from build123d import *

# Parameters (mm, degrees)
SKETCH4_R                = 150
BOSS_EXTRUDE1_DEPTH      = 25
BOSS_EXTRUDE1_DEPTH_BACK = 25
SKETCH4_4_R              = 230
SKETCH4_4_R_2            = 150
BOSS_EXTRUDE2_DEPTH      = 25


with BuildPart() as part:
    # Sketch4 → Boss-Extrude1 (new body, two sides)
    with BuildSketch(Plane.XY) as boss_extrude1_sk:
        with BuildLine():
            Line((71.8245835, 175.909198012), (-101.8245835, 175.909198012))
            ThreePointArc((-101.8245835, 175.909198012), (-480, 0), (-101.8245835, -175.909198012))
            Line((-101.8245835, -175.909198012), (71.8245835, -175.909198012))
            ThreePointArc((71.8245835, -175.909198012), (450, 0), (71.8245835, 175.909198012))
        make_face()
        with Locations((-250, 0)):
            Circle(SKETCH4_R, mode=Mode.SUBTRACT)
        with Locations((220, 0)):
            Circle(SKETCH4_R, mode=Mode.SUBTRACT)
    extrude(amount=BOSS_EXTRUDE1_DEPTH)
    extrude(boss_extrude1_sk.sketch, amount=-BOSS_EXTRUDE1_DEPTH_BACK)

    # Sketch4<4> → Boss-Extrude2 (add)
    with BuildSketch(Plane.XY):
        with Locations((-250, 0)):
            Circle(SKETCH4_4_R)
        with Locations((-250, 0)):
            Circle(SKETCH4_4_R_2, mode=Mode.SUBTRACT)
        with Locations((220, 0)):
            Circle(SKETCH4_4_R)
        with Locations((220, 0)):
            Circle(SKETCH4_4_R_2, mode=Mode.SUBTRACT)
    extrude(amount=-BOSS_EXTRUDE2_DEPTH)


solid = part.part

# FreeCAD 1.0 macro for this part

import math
import FreeCAD as App
import Part
import Sketcher
from FreeCAD import Vector
Q = App.Units.Quantity

doc = App.newDocument("Part")
params = doc.addObject("Spreadsheet::Sheet", "Params")
for row, (alias, value) in enumerate([
    ("sketch1_diameter", "300 mm"),
    ("sketch1_radius", "230 mm"),
    ("pad1_length", "25 mm"),
    ("pad1_length2", "25 mm"),
    ("sketch2_diameter", "460 mm"),
    ("sketch2_diameter2", "300 mm"),
    ("pad2_length", "25 mm"),
], start=1):
    params.set(f"A{row}", alias)
    params.set(f"B{row}", "=" + value)
    params.setAlias(f"B{row}", alias)

body = doc.addObject("PartDesign::Body", "Body")

# Sketch on XY plane
sketch1 = doc.addObject("Sketcher::SketchObject", "Sketch")
body.addObject(sketch1)
sketch1.AttachmentSupport = (doc.XY_Plane, [""])
sketch1.MapMode = "FlatFace"
sketch1.addGeometry([
    Part.LineSegment(Vector(72, 176, 0), Vector(-102, 176, 0)),  # 0
    Part.ArcOfCircle(Part.Circle(Vector(-250, 0, 0), Vector(0, 0, 1), 230), math.radians(50), math.radians(310)),  # 1
    Part.LineSegment(Vector(-102, -176, 0), Vector(72, -176, 0)),  # 2
    Part.ArcOfCircle(Part.Circle(Vector(220, 0, 0), Vector(0, 0, 1), 230), math.radians(-130), math.radians(130)),  # 3
    Part.Circle(Vector(-250, 0, 0), Vector(0, 0, 1), 150),  # 4
    Part.Circle(Vector(220, 0, 0), Vector(0, 0, 1), 150),  # 5
], False)
sketch1.addConstraint([
    Sketcher.Constraint("Coincident", 0, 2, 1, 1),
    Sketcher.Constraint("Coincident", 1, 2, 2, 1),
    Sketcher.Constraint("Coincident", 2, 2, 3, 1),
    Sketcher.Constraint("Coincident", 3, 2, 0, 1),
    Sketcher.Constraint("Horizontal", 0),
    Sketcher.Constraint("Horizontal", 2),
    Sketcher.Constraint("Coincident", 4, 3, 1, 3),
    Sketcher.Constraint("Coincident", 5, 3, 3, 3),
    Sketcher.Constraint("Equal", 1, 3),
    Sketcher.Constraint("Equal", 4, 5),
    Sketcher.Constraint("Symmetric", 0, 2, 1, 2, -1),
    Sketcher.Constraint("PointOnObject", 3, 3, -1),
    Sketcher.Constraint("Diameter", 4, Q("300 mm")),
    Sketcher.Constraint("Radius", 1, Q("230 mm")),
    Sketcher.Constraint("DistanceX", 1, 3, -1, 1, Q("250 mm")),
    Sketcher.Constraint("DistanceX", -1, 1, 3, 3, Q("220 mm")),
    Sketcher.Constraint("DistanceY", -1, 1, 0, 2, Q("175.909198 mm")),
])
sketch1.setExpression("Constraints[12]", "Params.sketch1_diameter")
sketch1.setExpression("Constraints[13]", "Params.sketch1_radius")
pad1 = doc.addObject("PartDesign::Pad", "Pad")
body.addObject(pad1)
pad1.Profile = sketch1
pad1.Type = "TwoLengths"
pad1.setExpression("Length", "Params.pad1_length")
pad1.setExpression("Length2", "Params.pad1_length2")

# Sketch on XY plane
sketch2 = doc.addObject("Sketcher::SketchObject", "Sketch001")
body.addObject(sketch2)
sketch2.AttachmentSupport = (doc.XY_Plane, [""])
sketch2.MapMode = "FlatFace"
sketch2.addGeometry([
    Part.Circle(Vector(-250, 0, 0), Vector(0, 0, 1), 230),
    Part.Circle(Vector(-250, 0, 0), Vector(0, 0, 1), 150),
    Part.Circle(Vector(220, 0, 0), Vector(0, 0, 1), 230),
    Part.Circle(Vector(220, 0, 0), Vector(0, 0, 1), 150),
], False)
sketch2.addConstraint([
    Sketcher.Constraint("Coincident", 1, 3, 0, 3),
    Sketcher.Constraint("Coincident", 3, 3, 2, 3),
    Sketcher.Constraint("Equal", 0, 2),
    Sketcher.Constraint("Equal", 1, 3),
    Sketcher.Constraint("PointOnObject", 0, 3, -1),
    Sketcher.Constraint("PointOnObject", 2, 3, -1),
    Sketcher.Constraint("Diameter", 0, Q("460 mm")),
    Sketcher.Constraint("Diameter", 1, Q("300 mm")),
    Sketcher.Constraint("DistanceX", 0, 3, -1, 1, Q("250 mm")),
    Sketcher.Constraint("DistanceX", -1, 1, 2, 3, Q("220 mm")),
])
sketch2.setExpression("Constraints[6]", "Params.sketch2_diameter")
sketch2.setExpression("Constraints[7]", "Params.sketch2_diameter2")
pad2 = doc.addObject("PartDesign::Pad", "Pad001")
body.addObject(pad2)
pad2.Profile = sketch2
pad2.setExpression("Length", "Params.pad2_length")
pad2.Reversed = True

doc.recompute()
